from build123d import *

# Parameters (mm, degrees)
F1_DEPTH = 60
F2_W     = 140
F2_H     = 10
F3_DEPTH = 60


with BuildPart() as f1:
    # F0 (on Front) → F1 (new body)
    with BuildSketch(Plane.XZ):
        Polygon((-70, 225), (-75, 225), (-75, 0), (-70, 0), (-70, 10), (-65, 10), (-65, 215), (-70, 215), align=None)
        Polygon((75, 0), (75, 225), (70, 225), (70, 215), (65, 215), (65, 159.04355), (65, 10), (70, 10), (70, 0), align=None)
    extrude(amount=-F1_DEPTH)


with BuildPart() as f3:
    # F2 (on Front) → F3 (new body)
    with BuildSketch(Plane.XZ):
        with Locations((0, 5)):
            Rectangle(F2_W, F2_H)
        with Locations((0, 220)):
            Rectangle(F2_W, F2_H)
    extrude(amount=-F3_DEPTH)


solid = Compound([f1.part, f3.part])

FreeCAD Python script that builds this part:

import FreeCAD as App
import Part
import Sketcher

V = App.Vector
Q = App.Units.Quantity


def add_polygon(sketch, points):
    """Adds a closed chain of lines whose ends are joined by coincident constraints."""
    first, n = sketch.GeometryCount, len(points)
    for a, b in zip(points, points[1:] + points[:1]):
        sketch.addGeometry(Part.LineSegment(App.Vector(*a, 0), App.Vector(*b, 0)), False)
    for i in range(n):
        sketch.addConstraint(Sketcher.Constraint("Coincident", first + i, 2, first + (i + 1) % n, 1))

doc = App.newDocument("Part")
params = doc.addObject("Spreadsheet::Sheet", "Params")
for row, (alias, value) in enumerate([
    ("sketch1_width", "5 mm"),
    ("sketch1_height", "225 mm"),
    ("sketch1_height2", "10 mm"),
    ("pad1_length", "60 mm"),
    ("sketch2_width", "140 mm"),
    ("sketch2_height", "10 mm"),
    ("pad2_length", "60 mm"),
], start=1):
    params.set(f"A{row}", alias)
    params.set(f"B{row}", "=" + value)
    params.setAlias(f"B{row}", alias)

body = doc.addObject("PartDesign::Body", "Body")
body.AllowCompound = True

sketch1 = doc.addObject("Sketcher::SketchObject", "Sketch")
body.addObject(sketch1)
sketch1.AttachmentSupport = (doc.XZ_Plane, [""])
sketch1.MapMode = "FlatFace"
add_polygon(sketch1, [(-70, 225), (-75, 225), (-75, 0), (-70, 0), (-70, 10), (-65, 10), (-65, 215), (-70, 215)])
add_polygon(sketch1, [(75, 0), (75, 225), (70, 225), (70, 215), (65, 215), (65, 10), (70, 10), (70, 0)])
sketch1.addConstraint(Sketcher.Constraint("Horizontal", 0))
sketch1.addConstraint(Sketcher.Constraint("Vertical", 1))
sketch1.addConstraint(Sketcher.Constraint("Horizontal", 2))
sketch1.addConstraint(Sketcher.Constraint("Vertical", 3))
sketch1.addConstraint(Sketcher.Constraint("Horizontal", 4))
sketch1.addConstraint(Sketcher.Constraint("Vertical", 5))
sketch1.addConstraint(Sketcher.Constraint("Horizontal", 6))
sketch1.addConstraint(Sketcher.Constraint("Vertical", 7))
sketch1.addConstraint(Sketcher.Constraint("Vertical", 8))
sketch1.addConstraint(Sketcher.Constraint("Horizontal", 9))
sketch1.addConstraint(Sketcher.Constraint("Vertical", 10))
sketch1.addConstraint(Sketcher.Constraint("Horizontal", 11))
sketch1.addConstraint(Sketcher.Constraint("Vertical", 12))
sketch1.addConstraint(Sketcher.Constraint("Horizontal", 13))
sketch1.addConstraint(Sketcher.Constraint("Vertical", 14))
sketch1.addConstraint(Sketcher.Constraint("Horizontal", 15))
sketch1.addConstraint(Sketcher.Constraint("Symmetric", 2, 2, 14, 2, -1, 1))
sketch1.addConstraint(Sketcher.Constraint("Symmetric", 0, 2, 8, 2, -2))
sketch1.addConstraint(Sketcher.Constraint("Symmetric", 6, 2, 10, 2, -2))
sketch1.addConstraint(Sketcher.Constraint("Symmetric", 4, 2, 12, 2, -2))
sketch1.addConstraint(Sketcher.Constraint("PointOnObject", 1, 2, -1))
sketch1.addConstraint(Sketcher.Constraint("Vertical", 3, 2, 6, 2))
sketch1.addConstraint(Sketcher.Constraint("Equal", 2, 4))
sketch1.addConstraint(Sketcher.Constraint("Equal", 3, 7))
sketch1.addConstraint(Sketcher.Constraint("DistanceX", 0, 2, 0, 1, Q("5 mm")))
sketch1.addConstraint(Sketcher.Constraint("DistanceY", 1, 2, 1, 1, Q("225 mm")))
sketch1.addConstraint(Sketcher.Constraint("DistanceY", 3, 1, 3, 2, Q("10 mm")))
sketch1.addConstraint(Sketcher.Constraint("DistanceX", 0, 2, -1, 1, Q("75 mm")))
sketch1.setExpression("Constraints[40]", "Params.sketch1_width")
sketch1.setExpression("Constraints[41]", "Params.sketch1_height")
sketch1.setExpression("Constraints[42]", "Params.sketch1_height2")
pad1 = doc.addObject("PartDesign::Pad", "Pad")
body.addObject(pad1)
pad1.Profile = sketch1
pad1.setExpression("Length", "Params.pad1_length")
pad1.Reversed = True
body2 = doc.addObject("PartDesign::Body", "Body001")
body2.AllowCompound = True

sketch2 = doc.addObject("Sketcher::SketchObject", "Sketch001")
body2.addObject(sketch2)
sketch2.AttachmentSupport = (doc.getObject("XZ_Plane001"), [""])
sketch2.MapMode = "FlatFace"
add_polygon(sketch2, [(-70, 10), (-70, 0), (70, 0), (70, 10)])
add_polygon(sketch2, [(-70, 225), (-70, 215), (70, 215), (70, 225)])
sketch2.addConstraint(Sketcher.Constraint("Vertical", 0))
sketch2.addConstraint(Sketcher.Constraint("Horizontal", 1))
sketch2.addConstraint(Sketcher.Constraint("Vertical", 2))
sketch2.addConstraint(Sketcher.Constraint("Horizontal", 3))
sketch2.addConstraint(Sketcher.Constraint("Vertical", 4))
sketch2.addConstraint(Sketcher.Constraint("Horizontal", 5))
sketch2.addConstraint(Sketcher.Constraint("Vertical", 6))
sketch2.addConstraint(Sketcher.Constraint("Horizontal", 7))
sketch2.addConstraint(Sketcher.Constraint("Symmetric", 0, 2, 1, 2, -1, 1))
sketch2.addConstraint(Sketcher.Constraint("Vertical", 3, 2, 4, 2))
sketch2.addConstraint(Sketcher.Constraint("Vertical", 2, 2, 5, 2))
sketch2.addConstraint(Sketcher.Constraint("Equal", 2, 4))
sketch2.addConstraint(Sketcher.Constraint("DistanceX", 1, 1, 1, 2, Q("140 mm")))
sketch2.addConstraint(Sketcher.Constraint("DistanceY", 0, 2, 0, 1, Q("10 mm")))
sketch2.addConstraint(Sketcher.Constraint("DistanceY", -1, 1, 4, 2, Q("215 mm")))
sketch2.setExpression("Constraints[20]", "Params.sketch2_width")
sketch2.setExpression("Constraints[21]", "Params.sketch2_height")
pad2 = doc.addObject("PartDesign::Pad", "Pad001")
body2.addObject(pad2)
pad2.Profile = sketch2
pad2.setExpression("Length", "Params.pad2_length")
pad2.Reversed = True

doc.recompute()
